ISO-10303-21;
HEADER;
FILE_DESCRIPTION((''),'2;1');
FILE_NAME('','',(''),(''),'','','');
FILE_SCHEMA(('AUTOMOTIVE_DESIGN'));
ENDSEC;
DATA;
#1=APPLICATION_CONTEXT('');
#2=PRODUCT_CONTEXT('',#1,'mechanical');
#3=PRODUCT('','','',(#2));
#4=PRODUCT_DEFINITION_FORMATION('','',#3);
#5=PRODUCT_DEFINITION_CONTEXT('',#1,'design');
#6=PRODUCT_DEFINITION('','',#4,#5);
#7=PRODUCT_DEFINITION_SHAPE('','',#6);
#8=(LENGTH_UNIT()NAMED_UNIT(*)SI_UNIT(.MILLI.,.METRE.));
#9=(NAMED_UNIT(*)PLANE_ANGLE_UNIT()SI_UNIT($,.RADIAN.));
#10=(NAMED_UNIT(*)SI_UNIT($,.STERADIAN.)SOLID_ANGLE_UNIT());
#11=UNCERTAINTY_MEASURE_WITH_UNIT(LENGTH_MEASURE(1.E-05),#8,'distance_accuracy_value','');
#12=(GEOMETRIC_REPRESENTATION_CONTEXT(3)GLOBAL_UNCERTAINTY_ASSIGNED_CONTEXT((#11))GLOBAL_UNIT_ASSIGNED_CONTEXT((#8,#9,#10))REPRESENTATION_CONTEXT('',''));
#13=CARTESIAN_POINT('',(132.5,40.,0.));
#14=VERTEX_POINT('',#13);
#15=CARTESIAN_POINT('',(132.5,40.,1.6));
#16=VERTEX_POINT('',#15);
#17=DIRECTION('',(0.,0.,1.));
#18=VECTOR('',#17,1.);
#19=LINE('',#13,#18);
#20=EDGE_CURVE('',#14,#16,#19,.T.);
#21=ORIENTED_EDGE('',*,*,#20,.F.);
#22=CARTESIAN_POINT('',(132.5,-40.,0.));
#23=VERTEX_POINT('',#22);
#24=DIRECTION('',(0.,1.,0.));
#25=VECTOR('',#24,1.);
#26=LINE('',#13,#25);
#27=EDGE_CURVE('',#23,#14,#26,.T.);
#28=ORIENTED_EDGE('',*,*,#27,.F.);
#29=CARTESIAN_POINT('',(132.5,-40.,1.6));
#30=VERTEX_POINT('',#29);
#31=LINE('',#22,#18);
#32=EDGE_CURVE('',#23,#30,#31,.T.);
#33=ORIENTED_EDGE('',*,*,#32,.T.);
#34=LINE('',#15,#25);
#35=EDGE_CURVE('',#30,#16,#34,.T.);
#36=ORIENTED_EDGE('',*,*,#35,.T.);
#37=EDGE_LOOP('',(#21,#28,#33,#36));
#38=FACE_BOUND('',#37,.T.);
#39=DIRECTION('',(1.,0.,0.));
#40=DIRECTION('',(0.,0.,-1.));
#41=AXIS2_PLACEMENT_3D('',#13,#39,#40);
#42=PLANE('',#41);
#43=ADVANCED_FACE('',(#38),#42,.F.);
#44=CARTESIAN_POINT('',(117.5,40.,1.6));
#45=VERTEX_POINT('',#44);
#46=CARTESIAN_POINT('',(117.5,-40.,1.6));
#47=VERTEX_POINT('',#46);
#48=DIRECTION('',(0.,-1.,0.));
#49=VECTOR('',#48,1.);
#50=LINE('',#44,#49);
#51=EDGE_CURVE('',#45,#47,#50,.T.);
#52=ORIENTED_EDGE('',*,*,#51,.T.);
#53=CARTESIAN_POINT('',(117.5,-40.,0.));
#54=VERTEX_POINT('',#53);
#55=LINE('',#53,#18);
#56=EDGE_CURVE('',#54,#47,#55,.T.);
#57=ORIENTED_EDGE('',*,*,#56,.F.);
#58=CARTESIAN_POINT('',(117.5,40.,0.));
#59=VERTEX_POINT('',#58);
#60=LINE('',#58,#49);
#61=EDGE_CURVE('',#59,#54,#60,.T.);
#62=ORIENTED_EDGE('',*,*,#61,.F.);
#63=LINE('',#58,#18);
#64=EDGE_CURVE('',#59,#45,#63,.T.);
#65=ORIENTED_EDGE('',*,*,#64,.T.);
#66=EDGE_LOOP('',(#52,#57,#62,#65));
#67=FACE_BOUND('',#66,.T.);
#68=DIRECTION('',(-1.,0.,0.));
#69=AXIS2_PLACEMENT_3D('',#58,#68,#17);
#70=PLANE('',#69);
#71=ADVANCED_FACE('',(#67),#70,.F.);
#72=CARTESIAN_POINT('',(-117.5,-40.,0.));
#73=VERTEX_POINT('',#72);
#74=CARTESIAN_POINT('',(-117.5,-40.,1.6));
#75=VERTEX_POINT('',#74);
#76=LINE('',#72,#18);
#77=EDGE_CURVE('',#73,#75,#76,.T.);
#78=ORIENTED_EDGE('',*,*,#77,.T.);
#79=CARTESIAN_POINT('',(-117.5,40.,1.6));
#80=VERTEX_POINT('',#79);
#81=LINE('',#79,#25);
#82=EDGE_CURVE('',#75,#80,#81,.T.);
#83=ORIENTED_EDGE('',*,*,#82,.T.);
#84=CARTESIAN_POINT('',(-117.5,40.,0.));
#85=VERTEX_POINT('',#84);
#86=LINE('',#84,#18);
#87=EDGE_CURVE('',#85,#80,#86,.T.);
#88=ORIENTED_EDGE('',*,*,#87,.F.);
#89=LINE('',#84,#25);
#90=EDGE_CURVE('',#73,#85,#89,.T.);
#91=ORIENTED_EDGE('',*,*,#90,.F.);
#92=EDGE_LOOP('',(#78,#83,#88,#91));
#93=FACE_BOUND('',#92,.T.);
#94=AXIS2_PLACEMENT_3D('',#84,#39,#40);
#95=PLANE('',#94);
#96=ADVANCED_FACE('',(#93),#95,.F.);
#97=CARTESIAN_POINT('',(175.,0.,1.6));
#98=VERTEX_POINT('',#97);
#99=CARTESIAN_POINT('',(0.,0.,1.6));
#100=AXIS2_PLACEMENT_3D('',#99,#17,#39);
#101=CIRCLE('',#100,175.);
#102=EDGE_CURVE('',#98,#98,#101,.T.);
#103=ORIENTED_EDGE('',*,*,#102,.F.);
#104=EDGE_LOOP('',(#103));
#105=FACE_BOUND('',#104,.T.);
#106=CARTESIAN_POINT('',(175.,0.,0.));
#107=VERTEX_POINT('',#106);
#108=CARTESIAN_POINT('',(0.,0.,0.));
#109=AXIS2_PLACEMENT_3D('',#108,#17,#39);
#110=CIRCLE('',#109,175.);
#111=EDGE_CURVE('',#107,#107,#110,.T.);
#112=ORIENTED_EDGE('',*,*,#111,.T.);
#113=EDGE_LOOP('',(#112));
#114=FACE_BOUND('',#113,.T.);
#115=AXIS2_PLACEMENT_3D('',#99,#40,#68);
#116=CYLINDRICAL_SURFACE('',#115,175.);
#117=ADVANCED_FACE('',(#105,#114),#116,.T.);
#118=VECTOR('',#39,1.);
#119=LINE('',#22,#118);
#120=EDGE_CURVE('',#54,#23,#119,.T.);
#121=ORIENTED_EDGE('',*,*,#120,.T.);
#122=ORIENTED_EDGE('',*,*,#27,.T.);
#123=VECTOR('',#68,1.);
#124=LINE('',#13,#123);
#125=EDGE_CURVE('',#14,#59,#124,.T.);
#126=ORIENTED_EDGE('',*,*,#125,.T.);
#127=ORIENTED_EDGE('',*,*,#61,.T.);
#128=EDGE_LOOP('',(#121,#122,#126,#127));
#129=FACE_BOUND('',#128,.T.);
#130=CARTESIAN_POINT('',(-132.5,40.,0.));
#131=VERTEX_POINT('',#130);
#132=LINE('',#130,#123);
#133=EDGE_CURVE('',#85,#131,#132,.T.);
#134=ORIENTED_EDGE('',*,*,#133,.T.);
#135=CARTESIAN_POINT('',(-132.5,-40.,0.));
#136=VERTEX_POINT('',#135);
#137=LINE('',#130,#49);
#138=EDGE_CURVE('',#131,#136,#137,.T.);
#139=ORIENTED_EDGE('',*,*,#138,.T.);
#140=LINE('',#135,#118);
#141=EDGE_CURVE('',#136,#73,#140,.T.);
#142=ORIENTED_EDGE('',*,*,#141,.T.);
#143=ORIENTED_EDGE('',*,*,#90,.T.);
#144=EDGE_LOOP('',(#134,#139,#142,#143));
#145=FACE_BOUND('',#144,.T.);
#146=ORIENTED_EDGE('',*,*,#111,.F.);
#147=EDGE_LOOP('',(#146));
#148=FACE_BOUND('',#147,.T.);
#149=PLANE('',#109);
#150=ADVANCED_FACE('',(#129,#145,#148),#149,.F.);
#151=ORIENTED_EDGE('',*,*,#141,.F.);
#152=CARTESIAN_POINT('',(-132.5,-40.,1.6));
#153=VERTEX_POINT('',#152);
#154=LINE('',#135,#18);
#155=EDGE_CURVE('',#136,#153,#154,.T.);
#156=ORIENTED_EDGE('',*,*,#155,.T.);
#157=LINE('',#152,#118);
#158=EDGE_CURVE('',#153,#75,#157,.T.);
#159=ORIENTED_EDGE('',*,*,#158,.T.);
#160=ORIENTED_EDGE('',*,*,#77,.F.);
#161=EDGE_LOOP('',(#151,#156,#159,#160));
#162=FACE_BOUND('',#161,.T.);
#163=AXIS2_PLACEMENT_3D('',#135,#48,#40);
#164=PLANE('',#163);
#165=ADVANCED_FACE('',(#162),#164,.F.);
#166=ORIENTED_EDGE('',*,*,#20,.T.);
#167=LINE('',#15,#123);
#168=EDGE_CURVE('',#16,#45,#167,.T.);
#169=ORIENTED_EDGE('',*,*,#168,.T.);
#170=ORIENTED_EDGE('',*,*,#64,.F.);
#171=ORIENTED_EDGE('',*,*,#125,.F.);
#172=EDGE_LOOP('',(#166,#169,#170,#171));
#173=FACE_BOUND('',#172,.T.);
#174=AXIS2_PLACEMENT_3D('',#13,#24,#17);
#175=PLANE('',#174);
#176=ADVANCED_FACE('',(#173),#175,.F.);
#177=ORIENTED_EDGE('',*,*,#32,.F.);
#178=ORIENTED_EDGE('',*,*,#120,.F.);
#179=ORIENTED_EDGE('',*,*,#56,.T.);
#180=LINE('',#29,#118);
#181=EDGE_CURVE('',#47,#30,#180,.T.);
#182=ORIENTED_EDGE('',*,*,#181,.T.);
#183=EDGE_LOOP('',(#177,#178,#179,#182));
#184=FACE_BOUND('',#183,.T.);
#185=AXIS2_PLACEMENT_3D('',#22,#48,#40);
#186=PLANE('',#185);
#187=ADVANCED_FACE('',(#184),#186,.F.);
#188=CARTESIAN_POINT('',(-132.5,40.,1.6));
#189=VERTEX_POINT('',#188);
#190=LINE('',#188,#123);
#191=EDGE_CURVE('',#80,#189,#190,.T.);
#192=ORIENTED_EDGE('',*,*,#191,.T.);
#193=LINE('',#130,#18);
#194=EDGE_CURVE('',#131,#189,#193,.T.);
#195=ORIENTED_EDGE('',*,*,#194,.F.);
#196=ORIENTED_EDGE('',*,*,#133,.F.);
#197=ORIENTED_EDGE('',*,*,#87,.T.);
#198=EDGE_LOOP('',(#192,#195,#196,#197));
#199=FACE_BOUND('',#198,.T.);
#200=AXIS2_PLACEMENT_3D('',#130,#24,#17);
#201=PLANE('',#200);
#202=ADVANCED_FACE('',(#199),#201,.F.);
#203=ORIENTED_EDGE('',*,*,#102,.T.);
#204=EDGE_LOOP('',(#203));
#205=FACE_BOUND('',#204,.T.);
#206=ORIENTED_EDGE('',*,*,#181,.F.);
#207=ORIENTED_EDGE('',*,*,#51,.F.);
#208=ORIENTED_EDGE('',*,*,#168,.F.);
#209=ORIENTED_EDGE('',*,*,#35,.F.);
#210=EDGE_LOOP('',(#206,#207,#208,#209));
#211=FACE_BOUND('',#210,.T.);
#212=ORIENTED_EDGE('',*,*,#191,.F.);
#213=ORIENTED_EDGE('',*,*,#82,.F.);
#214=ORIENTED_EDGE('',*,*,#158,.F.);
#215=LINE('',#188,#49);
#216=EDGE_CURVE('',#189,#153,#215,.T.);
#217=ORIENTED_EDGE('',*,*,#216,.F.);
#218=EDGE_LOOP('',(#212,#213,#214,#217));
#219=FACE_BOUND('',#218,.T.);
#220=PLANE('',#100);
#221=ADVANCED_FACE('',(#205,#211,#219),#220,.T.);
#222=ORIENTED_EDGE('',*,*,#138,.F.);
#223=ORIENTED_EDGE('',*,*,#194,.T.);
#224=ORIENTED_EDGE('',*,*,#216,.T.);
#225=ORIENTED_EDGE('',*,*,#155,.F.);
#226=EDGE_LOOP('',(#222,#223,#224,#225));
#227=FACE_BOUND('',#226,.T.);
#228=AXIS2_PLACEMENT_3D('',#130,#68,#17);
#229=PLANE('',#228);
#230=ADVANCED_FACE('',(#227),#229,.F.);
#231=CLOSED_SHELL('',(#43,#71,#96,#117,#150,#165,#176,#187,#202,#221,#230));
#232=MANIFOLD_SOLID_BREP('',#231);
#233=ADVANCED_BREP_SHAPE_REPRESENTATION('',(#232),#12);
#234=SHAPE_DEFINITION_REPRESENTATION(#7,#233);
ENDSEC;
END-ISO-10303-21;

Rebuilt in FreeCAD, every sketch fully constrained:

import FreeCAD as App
import Part
import Sketcher
from FreeCAD import Vector
Q = App.Units.Quantity


def add_polygon(sketch, points):
    """Adds a closed chain of lines whose ends are joined by coincident constraints."""
    first, n = sketch.GeometryCount, len(points)
    for a, b in zip(points, points[1:] + points[:1]):
        sketch.addGeometry(Part.LineSegment(App.Vector(*a, 0), App.Vector(*b, 0)), False)
    for i in range(n):
        sketch.addConstraint(Sketcher.Constraint("Coincident", first + i, 2, first + (i + 1) % n, 1))

doc = App.newDocument("Part")
body = doc.addObject("PartDesign::Body", "Body")

# Sketch on XY plane
sketch1 = body.newObject("Sketcher::SketchObject", "Sketch")
sketch1.AttachmentSupport = (doc.getObject("XY_Plane"), [""])
sketch1.MapMode = "FlatFace"
sketch1.addGeometry(Part.Circle(Vector(0, 0, 0), Vector(0, 0, 1), 175), False)
sketch1.addConstraint([
    Sketcher.Constraint("Coincident", 0, 3, -1, 1),
    Sketcher.Constraint("Diameter", 0, Q("350 mm")),
])
pad1 = body.newObject("PartDesign::Pad", "Pad")
pad1.Profile = sketch1
pad1.Length = 1.6

# Sketch on XY plane
sketch2 = body.newObject("Sketcher::SketchObject", "Sketch001")
sketch2.AttachmentSupport = (doc.getObject("XY_Plane"), [""])
sketch2.MapMode = "FlatFace"
sketch2.AttachmentOffset = App.Placement(Vector(0, 0, 1.6), App.Rotation())
add_polygon(sketch2, [(-132, 40), (-132, -40), (-118, -40), (-118, 40)])  # lines 0-3
add_polygon(sketch2, [(118, 40), (118, -40), (132, -40), (132, 40)])  # lines 4-7
sketch2.addConstraint([
    Sketcher.Constraint("Vertical", 0),
    Sketcher.Constraint("Horizontal", 1),
    Sketcher.Constraint("Vertical", 2),
    Sketcher.Constraint("Horizontal", 3),
    Sketcher.Constraint("Vertical", 4),
    Sketcher.Constraint("Horizontal", 5),
    Sketcher.Constraint("Vertical", 6),
    Sketcher.Constraint("Horizontal", 7),
    Sketcher.Constraint("Symmetric", 2, 2, 4, 2, -1, 1),
    Sketcher.Constraint("Symmetric", 0, 2, 6, 2, -1, 1),
    Sketcher.Constraint("Horizontal", 1, 2, 4, 2),
    Sketcher.Constraint("DistanceX", 1, 1, 1, 2, Q("15 mm")),
    Sketcher.Constraint("DistanceY", 0, 2, 0, 1, Q("80 mm")),
    Sketcher.Constraint("DistanceX", 1, 2, 4, 2, Q("235 mm")),
])
pocket1 = body.newObject("PartDesign::Pocket", "Pocket")
pocket1.Profile = sketch2
pocket1.Type = "ThroughAll"

doc.recompute()
